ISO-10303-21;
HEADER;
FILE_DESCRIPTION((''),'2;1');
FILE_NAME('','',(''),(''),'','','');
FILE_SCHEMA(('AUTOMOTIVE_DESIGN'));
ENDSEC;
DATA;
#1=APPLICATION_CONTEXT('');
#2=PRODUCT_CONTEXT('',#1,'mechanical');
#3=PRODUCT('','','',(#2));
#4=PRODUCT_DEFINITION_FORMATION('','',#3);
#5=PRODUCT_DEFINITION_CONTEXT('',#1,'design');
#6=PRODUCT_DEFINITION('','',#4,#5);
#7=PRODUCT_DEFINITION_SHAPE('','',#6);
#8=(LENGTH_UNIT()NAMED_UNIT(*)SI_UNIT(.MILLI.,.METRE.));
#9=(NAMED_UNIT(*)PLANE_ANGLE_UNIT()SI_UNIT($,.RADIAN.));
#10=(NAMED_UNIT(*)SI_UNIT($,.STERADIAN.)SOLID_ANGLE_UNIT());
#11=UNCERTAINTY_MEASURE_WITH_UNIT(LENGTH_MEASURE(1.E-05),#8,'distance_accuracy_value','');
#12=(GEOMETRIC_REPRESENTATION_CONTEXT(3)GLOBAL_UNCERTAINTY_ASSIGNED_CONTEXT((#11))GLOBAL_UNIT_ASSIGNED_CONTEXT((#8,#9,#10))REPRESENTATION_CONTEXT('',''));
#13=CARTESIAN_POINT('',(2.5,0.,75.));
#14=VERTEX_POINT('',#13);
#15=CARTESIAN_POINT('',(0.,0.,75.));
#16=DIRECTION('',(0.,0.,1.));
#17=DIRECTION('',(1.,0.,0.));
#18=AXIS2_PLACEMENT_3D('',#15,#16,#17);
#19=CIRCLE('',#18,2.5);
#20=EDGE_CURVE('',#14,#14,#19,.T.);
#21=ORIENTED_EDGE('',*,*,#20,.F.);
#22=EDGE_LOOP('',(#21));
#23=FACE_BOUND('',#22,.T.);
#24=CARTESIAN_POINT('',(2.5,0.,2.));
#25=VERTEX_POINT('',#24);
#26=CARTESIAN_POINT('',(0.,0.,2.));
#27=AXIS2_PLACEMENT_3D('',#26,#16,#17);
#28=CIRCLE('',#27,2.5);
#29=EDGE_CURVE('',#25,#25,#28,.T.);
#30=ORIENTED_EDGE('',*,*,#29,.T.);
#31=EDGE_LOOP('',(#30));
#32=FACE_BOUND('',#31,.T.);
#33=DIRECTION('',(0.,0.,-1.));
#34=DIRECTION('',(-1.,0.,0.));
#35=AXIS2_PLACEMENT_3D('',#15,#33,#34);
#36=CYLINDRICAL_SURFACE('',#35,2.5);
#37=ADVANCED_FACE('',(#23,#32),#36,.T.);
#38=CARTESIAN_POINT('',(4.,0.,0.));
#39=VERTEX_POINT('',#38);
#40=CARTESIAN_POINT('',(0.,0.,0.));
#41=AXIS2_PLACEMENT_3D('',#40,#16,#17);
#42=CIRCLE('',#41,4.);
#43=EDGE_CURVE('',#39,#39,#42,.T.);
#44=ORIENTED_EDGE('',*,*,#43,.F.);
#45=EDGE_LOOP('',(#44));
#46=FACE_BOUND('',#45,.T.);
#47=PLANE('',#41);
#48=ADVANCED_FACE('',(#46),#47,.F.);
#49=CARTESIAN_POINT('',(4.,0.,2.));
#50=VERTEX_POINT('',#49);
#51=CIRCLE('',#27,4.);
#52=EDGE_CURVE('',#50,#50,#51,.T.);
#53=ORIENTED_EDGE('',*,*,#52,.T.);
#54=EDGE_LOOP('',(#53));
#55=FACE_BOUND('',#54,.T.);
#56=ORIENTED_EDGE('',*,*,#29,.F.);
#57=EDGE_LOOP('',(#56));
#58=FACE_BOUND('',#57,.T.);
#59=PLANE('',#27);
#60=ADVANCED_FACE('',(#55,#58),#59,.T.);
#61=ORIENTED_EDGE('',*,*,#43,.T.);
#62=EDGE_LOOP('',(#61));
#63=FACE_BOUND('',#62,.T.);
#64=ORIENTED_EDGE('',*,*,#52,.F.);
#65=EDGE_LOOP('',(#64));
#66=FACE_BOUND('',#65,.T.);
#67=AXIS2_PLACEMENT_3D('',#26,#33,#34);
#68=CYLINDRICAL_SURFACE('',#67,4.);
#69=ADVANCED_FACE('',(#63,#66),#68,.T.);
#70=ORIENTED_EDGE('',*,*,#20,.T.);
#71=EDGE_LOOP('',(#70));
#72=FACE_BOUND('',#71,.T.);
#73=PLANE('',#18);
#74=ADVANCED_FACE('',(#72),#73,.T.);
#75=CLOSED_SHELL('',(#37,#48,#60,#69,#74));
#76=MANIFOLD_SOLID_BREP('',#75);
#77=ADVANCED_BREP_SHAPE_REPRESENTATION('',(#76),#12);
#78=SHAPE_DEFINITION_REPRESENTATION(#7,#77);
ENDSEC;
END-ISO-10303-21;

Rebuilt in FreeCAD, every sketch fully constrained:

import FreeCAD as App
import Part
import Sketcher
from FreeCAD import Vector

doc = App.newDocument("Part")
body = doc.addObject("PartDesign::Body", "Body")

# Sketch on XY plane
sketch1 = body.newObject("Sketcher::SketchObject", "Sketch")
sketch1.AttachmentSupport = (doc.getObject("XY_Plane"), [""])
sketch1.MapMode = "FlatFace"
sketch1.addGeometry(Part.Circle(Vector(0, 0, 0), Vector(0, 0, 1), 2.5), False)
sketch1.addConstraint([
    Sketcher.Constraint("Coincident", 0, 3, -1, 1),
    Sketcher.Constraint("Diameter", 0, 5.0),
])
pad1 = body.newObject("PartDesign::Pad", "Pad")
pad1.Profile = sketch1
pad1.Length = 75

# Sketch on XY plane
sketch2 = body.newObject("Sketcher::SketchObject", "Sketch001")
sketch2.AttachmentSupport = (doc.getObject("XY_Plane"), [""])
sketch2.MapMode = "FlatFace"
sketch2.addGeometry([
    Part.Circle(Vector(0, 0, 0), Vector(0, 0, 1), 4),
    Part.Circle(Vector(0, 0, 0), Vector(0, 0, 1), 2.5),
], False)
sketch2.addConstraint([
    Sketcher.Constraint("Coincident", 0, 3, -1, 1),
    Sketcher.Constraint("Coincident", 1, 3, -1, 1),
    Sketcher.Constraint("Diameter", 0, 8.0),
    Sketcher.Constraint("Diameter", 1, 5.0),
])
pad2 = body.newObject("PartDesign::Pad", "Pad001")
pad2.Profile = sketch2
pad2.Length = 2

doc.recompute()
